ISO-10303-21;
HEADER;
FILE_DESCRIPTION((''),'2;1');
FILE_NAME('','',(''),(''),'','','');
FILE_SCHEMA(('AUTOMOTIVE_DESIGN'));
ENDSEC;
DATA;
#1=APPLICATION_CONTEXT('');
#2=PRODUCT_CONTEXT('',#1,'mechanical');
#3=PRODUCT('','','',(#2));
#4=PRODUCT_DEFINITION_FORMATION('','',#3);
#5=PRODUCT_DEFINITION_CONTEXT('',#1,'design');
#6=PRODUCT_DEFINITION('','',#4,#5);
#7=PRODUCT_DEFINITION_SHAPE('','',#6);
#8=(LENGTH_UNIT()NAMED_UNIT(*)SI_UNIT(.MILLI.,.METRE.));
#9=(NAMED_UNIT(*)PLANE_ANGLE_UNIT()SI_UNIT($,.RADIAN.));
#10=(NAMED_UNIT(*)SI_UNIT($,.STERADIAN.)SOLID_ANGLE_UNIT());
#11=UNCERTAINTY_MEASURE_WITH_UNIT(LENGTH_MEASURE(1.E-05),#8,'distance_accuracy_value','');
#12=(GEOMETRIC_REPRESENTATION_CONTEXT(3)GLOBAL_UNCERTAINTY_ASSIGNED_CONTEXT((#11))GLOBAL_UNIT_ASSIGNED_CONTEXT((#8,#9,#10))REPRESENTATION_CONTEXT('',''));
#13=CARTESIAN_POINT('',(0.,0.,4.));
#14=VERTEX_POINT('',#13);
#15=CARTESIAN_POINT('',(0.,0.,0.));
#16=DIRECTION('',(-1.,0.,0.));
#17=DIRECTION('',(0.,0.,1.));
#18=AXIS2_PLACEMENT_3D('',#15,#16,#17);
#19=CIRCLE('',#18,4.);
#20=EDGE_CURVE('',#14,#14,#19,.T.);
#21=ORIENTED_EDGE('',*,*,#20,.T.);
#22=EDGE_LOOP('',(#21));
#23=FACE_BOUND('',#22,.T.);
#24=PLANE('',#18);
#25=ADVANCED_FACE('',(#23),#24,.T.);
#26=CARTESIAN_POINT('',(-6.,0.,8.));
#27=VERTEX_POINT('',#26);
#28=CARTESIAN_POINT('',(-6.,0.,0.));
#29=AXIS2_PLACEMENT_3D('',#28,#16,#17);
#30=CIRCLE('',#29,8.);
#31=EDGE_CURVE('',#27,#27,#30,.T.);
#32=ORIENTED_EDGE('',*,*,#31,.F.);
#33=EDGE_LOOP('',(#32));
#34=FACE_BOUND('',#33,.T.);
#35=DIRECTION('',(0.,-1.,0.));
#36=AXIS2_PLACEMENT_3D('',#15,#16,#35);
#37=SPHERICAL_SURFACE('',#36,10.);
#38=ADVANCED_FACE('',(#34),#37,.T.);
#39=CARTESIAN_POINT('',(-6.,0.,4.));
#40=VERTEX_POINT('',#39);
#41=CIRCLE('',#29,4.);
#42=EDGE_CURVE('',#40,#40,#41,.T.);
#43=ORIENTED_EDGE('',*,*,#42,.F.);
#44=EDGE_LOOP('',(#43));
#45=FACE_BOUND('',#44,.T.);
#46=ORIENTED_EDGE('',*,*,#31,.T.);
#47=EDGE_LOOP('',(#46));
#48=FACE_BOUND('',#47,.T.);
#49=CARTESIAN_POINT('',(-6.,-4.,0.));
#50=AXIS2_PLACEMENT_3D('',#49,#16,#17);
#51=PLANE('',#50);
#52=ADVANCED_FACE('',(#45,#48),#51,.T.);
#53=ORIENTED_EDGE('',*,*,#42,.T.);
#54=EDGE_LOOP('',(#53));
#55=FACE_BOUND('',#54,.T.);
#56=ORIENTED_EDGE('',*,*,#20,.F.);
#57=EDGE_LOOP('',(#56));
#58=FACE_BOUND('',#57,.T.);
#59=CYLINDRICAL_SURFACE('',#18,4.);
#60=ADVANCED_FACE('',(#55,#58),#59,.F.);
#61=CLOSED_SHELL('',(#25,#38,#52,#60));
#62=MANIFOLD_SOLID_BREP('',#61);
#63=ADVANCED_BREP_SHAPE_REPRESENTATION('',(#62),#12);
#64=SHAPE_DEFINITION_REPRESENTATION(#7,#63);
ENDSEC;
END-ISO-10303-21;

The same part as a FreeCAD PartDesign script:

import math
import FreeCAD as App
import Part
import Sketcher

V = App.Vector

doc = App.newDocument("Part")
body = doc.addObject("PartDesign::Body", "Body")

sketch1 = doc.addObject("Sketcher::SketchObject", "Sketch")
body.addObject(sketch1)
sketch1.AttachmentSupport = (doc.XY_Plane, [""])
sketch1.MapMode = "FlatFace"
sketch1.addGeometry([
    Part.LineSegment(V(10, 0, 0), V(0, 0, 0)),
    Part.LineSegment(V(0, 0, 0), V(0, -4, 0)),
    Part.LineSegment(V(0, -4, 0), V(-6, -4, 0)),
    Part.LineSegment(V(-6, -4, 0), V(-6, -8, 0)),
    Part.ArcOfCircle(Part.Circle(V(0, 0, 0), V(0, 0, 1), 10), math.radians(-127), math.radians(0)),
], False)
sketch1.addConstraint([
    Sketcher.Constraint("Coincident", 0, 2, 1, 1),
    Sketcher.Constraint("Coincident", 1, 2, 2, 1),
    Sketcher.Constraint("Coincident", 2, 2, 3, 1),
    Sketcher.Constraint("Coincident", 3, 2, 4, 1),
    Sketcher.Constraint("Coincident", 4, 2, 0, 1),
    Sketcher.Constraint("Horizontal", 0),
    Sketcher.Constraint("Vertical", 1),
    Sketcher.Constraint("Horizontal", 2),
    Sketcher.Constraint("Vertical", 3),
    Sketcher.Constraint("Coincident", 4, 3, -1, 1),
    Sketcher.Constraint("Coincident", 0, 2, -1, 1),
    Sketcher.Constraint("Equal", 1, 3),
    Sketcher.Constraint("Radius", 4, 10.0),
    Sketcher.Constraint("DistanceX", 2, 2, 2, 1, 6.0),
])
revolution = doc.addObject("PartDesign::Revolution", "Revolution")
body.addObject(revolution)
revolution.Profile = sketch1
revolution.ReferenceAxis = (sketch1, ["H_Axis"])
revolution.Angle = 360

doc.recompute()
